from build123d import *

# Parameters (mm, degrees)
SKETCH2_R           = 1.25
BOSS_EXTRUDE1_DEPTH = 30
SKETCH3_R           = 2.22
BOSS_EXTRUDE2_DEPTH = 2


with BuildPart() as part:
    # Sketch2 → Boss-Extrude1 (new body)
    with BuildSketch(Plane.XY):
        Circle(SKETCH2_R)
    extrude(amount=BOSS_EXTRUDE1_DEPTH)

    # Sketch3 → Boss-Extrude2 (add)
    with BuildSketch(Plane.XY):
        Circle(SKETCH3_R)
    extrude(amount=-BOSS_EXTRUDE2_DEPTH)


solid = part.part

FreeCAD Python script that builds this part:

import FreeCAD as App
import Part
import Sketcher

V = App.Vector

doc = App.newDocument("Part")
body = doc.addObject("PartDesign::Body", "Body")

# Sketch on XY plane
sketch1 = body.newObject("Sketcher::SketchObject", "Sketch")
sketch1.AttachmentSupport = (doc.getObject("XY_Plane"), [""])
sketch1.MapMode = "FlatFace"
sketch1.addGeometry(Part.Circle(V(0, 0, 0), V(0, 0, 1), 1.2), False)
sketch1.addConstraint([
    Sketcher.Constraint("Coincident", 0, 3, -1, 1),
    Sketcher.Constraint("Diameter", 0, 2.5),
])
pad1 = body.newObject("PartDesign::Pad", "Pad")
pad1.Profile = sketch1
pad1.Length = 30

# Sketch on XY plane
sketch2 = body.newObject("Sketcher::SketchObject", "Sketch001")
sketch2.AttachmentSupport = (doc.getObject("XY_Plane"), [""])
sketch2.MapMode = "FlatFace"
sketch2.addGeometry(Part.Circle(V(0, 0, 0), V(0, 0, 1), 2.2), False)
sketch2.addConstraint([
    Sketcher.Constraint("Coincident", 0, 3, -1, 1),
    Sketcher.Constraint("Diameter", 0, 4.44),
])
pad2 = body.newObject("PartDesign::Pad", "Pad001")
pad2.Profile = sketch2
pad2.Length = 2
pad2.Reversed = True

doc.recompute()
